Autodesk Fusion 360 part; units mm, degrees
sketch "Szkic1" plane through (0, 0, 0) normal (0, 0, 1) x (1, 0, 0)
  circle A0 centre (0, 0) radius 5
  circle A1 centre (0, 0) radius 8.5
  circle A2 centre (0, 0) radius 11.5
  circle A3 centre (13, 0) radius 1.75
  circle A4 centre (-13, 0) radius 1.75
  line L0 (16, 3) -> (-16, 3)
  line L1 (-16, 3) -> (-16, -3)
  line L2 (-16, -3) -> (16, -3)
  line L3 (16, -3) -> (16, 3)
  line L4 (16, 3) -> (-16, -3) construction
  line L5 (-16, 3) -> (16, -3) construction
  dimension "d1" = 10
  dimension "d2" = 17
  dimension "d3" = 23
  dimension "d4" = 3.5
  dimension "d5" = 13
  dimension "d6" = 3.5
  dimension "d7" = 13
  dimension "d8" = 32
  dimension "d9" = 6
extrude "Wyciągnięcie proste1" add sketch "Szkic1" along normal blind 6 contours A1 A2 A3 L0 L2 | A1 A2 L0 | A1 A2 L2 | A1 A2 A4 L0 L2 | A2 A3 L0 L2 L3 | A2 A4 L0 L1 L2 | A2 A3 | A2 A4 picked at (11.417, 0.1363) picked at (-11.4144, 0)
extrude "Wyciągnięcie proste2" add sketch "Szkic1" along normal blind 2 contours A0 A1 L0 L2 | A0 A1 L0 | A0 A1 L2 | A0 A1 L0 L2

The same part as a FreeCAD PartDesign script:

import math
import FreeCAD as App
import Part
import Sketcher

V = App.Vector

doc = App.newDocument("Part")
body = doc.addObject("PartDesign::Body", "Body")

# Sketch on XY plane
sketch1 = body.newObject("Sketcher::SketchObject", "Sketch")
sketch1.AttachmentSupport = (doc.getObject("XY_Plane"), [""])
sketch1.MapMode = "FlatFace"
sketch1.addGeometry([
    Part.ArcOfCircle(Part.Circle(V(0, 0, 0), V(0, 0, 1), 11.5), math.radians(15.121665), math.radians(164.878335)),  # 0
    Part.LineSegment(V(-11.101802, 3, 0), V(-16, 3, 0)),  # 1
    Part.LineSegment(V(-16, 3, 0), V(-16, -3, 0)),  # 2
    Part.LineSegment(V(-16, -3, 0), V(-11.101802, -3, 0)),  # 3
    Part.ArcOfCircle(Part.Circle(V(0, 0, 0), V(0, 0, 1), 11.5), math.radians(-164.878335), math.radians(-15.121665)),  # 4
    Part.LineSegment(V(11.101802, -3, 0), V(16, -3, 0)),  # 5
    Part.LineSegment(V(16, -3, 0), V(16, 3, 0)),  # 6
    Part.LineSegment(V(16, 3, 0), V(11.101802, 3, 0)),  # 7
    Part.Circle(V(0, 0, 0), V(0, 0, 1), 8.5),  # 8
    Part.ArcOfCircle(Part.Circle(V(13, 0, 0), V(0, 0, 1), 1.75), math.radians(-151.044976), math.radians(151.044976)),  # 9
    Part.ArcOfCircle(Part.Circle(V(0, 0, 0), V(0, 0, 1), 11.5), math.radians(-4.224858), math.radians(4.224858)),  # 10
    Part.ArcOfCircle(Part.Circle(V(-13, 0, 0), V(0, 0, 1), 1.75), math.radians(28.955024), math.radians(331.044976)),  # 11
    Part.ArcOfCircle(Part.Circle(V(0, 0, 0), V(0, 0, 1), 11.5), math.radians(175.775142), math.radians(184.224858)),  # 12
], False)
sketch1.addConstraint([
    Sketcher.Constraint("Coincident", 0, 2, 1, 1),
    Sketcher.Constraint("Coincident", 1, 2, 2, 1),
    Sketcher.Constraint("Coincident", 2, 2, 3, 1),
    Sketcher.Constraint("Coincident", 3, 2, 4, 1),
    Sketcher.Constraint("Coincident", 4, 2, 5, 1),
    Sketcher.Constraint("Coincident", 5, 2, 6, 1),
    Sketcher.Constraint("Coincident", 6, 2, 7, 1),
    Sketcher.Constraint("Coincident", 7, 2, 0, 1),
    Sketcher.Constraint("Coincident", 9, 1, 10, 1),
    Sketcher.Constraint("Coincident", 10, 2, 9, 2),
    Sketcher.Constraint("Coincident", 11, 1, 12, 1),
    Sketcher.Constraint("Coincident", 12, 2, 11, 2),
    Sketcher.Constraint("Horizontal", 1),
    Sketcher.Constraint("Vertical", 2),
    Sketcher.Constraint("Horizontal", 3),
    Sketcher.Constraint("Horizontal", 5),
    Sketcher.Constraint("Vertical", 6),
    Sketcher.Constraint("Horizontal", 7),
    Sketcher.Constraint("Coincident", 0, 3, -1, 1),
    Sketcher.Constraint("Coincident", 4, 3, -1, 1),
    Sketcher.Constraint("Coincident", 8, 3, -1, 1),
    Sketcher.Constraint("Coincident", 10, 3, -1, 1),
    Sketcher.Constraint("Coincident", 12, 3, -1, 1),
    Sketcher.Constraint("Equal", 0, 4),
    Sketcher.Constraint("Equal", 4, 10),
    Sketcher.Constraint("Equal", 9, 11),
    Sketcher.Constraint("Equal", 10, 12),
    Sketcher.Constraint("Symmetric", 9, 3, 11, 3, -1, 1),
    Sketcher.Constraint("Symmetric", 1, 2, 5, 2, -1, 1),
    Sketcher.Constraint("PointOnObject", 9, 3, -1),
    Sketcher.Constraint("Horizontal", 3, 2, 4, 2),
    Sketcher.Constraint("Horizontal", 1, 2, 6, 2),
    Sketcher.Constraint("Diameter", 8, 17.0),
    Sketcher.Constraint("Radius", 0, 11.5),
    Sketcher.Constraint("DistanceY", 2, 2, 2, 1, 6.0),
    Sketcher.Constraint("Radius", 9, 1.75),
    Sketcher.Constraint("DistanceX", -1, 1, 9, 3, 13.0),
    Sketcher.Constraint("DistanceX", 1, 2, -1, 1, 16.0),
])
pad1 = body.newObject("PartDesign::Pad", "Pad")
pad1.Profile = sketch1
pad1.Length = 6

# Sketch on XY plane
sketch2 = body.newObject("Sketcher::SketchObject", "Sketch001")
sketch2.AttachmentSupport = (doc.getObject("XY_Plane"), [""])
sketch2.MapMode = "FlatFace"
sketch2.addGeometry([
    Part.Circle(V(0, 0, 0), V(0, 0, 1), 8.5),
    Part.Circle(V(0, 0, 0), V(0, 0, 1), 5),
], False)
sketch2.addConstraint([
    Sketcher.Constraint("Coincident", 0, 3, -1, 1),
    Sketcher.Constraint("Coincident", 1, 3, -1, 1),
    Sketcher.Constraint("Diameter", 0, 17.0),
    Sketcher.Constraint("Diameter", 1, 10.0),
])
pad2 = body.newObject("PartDesign::Pad", "Pad001")
pad2.Profile = sketch2
pad2.Length = 2

doc.recompute()
